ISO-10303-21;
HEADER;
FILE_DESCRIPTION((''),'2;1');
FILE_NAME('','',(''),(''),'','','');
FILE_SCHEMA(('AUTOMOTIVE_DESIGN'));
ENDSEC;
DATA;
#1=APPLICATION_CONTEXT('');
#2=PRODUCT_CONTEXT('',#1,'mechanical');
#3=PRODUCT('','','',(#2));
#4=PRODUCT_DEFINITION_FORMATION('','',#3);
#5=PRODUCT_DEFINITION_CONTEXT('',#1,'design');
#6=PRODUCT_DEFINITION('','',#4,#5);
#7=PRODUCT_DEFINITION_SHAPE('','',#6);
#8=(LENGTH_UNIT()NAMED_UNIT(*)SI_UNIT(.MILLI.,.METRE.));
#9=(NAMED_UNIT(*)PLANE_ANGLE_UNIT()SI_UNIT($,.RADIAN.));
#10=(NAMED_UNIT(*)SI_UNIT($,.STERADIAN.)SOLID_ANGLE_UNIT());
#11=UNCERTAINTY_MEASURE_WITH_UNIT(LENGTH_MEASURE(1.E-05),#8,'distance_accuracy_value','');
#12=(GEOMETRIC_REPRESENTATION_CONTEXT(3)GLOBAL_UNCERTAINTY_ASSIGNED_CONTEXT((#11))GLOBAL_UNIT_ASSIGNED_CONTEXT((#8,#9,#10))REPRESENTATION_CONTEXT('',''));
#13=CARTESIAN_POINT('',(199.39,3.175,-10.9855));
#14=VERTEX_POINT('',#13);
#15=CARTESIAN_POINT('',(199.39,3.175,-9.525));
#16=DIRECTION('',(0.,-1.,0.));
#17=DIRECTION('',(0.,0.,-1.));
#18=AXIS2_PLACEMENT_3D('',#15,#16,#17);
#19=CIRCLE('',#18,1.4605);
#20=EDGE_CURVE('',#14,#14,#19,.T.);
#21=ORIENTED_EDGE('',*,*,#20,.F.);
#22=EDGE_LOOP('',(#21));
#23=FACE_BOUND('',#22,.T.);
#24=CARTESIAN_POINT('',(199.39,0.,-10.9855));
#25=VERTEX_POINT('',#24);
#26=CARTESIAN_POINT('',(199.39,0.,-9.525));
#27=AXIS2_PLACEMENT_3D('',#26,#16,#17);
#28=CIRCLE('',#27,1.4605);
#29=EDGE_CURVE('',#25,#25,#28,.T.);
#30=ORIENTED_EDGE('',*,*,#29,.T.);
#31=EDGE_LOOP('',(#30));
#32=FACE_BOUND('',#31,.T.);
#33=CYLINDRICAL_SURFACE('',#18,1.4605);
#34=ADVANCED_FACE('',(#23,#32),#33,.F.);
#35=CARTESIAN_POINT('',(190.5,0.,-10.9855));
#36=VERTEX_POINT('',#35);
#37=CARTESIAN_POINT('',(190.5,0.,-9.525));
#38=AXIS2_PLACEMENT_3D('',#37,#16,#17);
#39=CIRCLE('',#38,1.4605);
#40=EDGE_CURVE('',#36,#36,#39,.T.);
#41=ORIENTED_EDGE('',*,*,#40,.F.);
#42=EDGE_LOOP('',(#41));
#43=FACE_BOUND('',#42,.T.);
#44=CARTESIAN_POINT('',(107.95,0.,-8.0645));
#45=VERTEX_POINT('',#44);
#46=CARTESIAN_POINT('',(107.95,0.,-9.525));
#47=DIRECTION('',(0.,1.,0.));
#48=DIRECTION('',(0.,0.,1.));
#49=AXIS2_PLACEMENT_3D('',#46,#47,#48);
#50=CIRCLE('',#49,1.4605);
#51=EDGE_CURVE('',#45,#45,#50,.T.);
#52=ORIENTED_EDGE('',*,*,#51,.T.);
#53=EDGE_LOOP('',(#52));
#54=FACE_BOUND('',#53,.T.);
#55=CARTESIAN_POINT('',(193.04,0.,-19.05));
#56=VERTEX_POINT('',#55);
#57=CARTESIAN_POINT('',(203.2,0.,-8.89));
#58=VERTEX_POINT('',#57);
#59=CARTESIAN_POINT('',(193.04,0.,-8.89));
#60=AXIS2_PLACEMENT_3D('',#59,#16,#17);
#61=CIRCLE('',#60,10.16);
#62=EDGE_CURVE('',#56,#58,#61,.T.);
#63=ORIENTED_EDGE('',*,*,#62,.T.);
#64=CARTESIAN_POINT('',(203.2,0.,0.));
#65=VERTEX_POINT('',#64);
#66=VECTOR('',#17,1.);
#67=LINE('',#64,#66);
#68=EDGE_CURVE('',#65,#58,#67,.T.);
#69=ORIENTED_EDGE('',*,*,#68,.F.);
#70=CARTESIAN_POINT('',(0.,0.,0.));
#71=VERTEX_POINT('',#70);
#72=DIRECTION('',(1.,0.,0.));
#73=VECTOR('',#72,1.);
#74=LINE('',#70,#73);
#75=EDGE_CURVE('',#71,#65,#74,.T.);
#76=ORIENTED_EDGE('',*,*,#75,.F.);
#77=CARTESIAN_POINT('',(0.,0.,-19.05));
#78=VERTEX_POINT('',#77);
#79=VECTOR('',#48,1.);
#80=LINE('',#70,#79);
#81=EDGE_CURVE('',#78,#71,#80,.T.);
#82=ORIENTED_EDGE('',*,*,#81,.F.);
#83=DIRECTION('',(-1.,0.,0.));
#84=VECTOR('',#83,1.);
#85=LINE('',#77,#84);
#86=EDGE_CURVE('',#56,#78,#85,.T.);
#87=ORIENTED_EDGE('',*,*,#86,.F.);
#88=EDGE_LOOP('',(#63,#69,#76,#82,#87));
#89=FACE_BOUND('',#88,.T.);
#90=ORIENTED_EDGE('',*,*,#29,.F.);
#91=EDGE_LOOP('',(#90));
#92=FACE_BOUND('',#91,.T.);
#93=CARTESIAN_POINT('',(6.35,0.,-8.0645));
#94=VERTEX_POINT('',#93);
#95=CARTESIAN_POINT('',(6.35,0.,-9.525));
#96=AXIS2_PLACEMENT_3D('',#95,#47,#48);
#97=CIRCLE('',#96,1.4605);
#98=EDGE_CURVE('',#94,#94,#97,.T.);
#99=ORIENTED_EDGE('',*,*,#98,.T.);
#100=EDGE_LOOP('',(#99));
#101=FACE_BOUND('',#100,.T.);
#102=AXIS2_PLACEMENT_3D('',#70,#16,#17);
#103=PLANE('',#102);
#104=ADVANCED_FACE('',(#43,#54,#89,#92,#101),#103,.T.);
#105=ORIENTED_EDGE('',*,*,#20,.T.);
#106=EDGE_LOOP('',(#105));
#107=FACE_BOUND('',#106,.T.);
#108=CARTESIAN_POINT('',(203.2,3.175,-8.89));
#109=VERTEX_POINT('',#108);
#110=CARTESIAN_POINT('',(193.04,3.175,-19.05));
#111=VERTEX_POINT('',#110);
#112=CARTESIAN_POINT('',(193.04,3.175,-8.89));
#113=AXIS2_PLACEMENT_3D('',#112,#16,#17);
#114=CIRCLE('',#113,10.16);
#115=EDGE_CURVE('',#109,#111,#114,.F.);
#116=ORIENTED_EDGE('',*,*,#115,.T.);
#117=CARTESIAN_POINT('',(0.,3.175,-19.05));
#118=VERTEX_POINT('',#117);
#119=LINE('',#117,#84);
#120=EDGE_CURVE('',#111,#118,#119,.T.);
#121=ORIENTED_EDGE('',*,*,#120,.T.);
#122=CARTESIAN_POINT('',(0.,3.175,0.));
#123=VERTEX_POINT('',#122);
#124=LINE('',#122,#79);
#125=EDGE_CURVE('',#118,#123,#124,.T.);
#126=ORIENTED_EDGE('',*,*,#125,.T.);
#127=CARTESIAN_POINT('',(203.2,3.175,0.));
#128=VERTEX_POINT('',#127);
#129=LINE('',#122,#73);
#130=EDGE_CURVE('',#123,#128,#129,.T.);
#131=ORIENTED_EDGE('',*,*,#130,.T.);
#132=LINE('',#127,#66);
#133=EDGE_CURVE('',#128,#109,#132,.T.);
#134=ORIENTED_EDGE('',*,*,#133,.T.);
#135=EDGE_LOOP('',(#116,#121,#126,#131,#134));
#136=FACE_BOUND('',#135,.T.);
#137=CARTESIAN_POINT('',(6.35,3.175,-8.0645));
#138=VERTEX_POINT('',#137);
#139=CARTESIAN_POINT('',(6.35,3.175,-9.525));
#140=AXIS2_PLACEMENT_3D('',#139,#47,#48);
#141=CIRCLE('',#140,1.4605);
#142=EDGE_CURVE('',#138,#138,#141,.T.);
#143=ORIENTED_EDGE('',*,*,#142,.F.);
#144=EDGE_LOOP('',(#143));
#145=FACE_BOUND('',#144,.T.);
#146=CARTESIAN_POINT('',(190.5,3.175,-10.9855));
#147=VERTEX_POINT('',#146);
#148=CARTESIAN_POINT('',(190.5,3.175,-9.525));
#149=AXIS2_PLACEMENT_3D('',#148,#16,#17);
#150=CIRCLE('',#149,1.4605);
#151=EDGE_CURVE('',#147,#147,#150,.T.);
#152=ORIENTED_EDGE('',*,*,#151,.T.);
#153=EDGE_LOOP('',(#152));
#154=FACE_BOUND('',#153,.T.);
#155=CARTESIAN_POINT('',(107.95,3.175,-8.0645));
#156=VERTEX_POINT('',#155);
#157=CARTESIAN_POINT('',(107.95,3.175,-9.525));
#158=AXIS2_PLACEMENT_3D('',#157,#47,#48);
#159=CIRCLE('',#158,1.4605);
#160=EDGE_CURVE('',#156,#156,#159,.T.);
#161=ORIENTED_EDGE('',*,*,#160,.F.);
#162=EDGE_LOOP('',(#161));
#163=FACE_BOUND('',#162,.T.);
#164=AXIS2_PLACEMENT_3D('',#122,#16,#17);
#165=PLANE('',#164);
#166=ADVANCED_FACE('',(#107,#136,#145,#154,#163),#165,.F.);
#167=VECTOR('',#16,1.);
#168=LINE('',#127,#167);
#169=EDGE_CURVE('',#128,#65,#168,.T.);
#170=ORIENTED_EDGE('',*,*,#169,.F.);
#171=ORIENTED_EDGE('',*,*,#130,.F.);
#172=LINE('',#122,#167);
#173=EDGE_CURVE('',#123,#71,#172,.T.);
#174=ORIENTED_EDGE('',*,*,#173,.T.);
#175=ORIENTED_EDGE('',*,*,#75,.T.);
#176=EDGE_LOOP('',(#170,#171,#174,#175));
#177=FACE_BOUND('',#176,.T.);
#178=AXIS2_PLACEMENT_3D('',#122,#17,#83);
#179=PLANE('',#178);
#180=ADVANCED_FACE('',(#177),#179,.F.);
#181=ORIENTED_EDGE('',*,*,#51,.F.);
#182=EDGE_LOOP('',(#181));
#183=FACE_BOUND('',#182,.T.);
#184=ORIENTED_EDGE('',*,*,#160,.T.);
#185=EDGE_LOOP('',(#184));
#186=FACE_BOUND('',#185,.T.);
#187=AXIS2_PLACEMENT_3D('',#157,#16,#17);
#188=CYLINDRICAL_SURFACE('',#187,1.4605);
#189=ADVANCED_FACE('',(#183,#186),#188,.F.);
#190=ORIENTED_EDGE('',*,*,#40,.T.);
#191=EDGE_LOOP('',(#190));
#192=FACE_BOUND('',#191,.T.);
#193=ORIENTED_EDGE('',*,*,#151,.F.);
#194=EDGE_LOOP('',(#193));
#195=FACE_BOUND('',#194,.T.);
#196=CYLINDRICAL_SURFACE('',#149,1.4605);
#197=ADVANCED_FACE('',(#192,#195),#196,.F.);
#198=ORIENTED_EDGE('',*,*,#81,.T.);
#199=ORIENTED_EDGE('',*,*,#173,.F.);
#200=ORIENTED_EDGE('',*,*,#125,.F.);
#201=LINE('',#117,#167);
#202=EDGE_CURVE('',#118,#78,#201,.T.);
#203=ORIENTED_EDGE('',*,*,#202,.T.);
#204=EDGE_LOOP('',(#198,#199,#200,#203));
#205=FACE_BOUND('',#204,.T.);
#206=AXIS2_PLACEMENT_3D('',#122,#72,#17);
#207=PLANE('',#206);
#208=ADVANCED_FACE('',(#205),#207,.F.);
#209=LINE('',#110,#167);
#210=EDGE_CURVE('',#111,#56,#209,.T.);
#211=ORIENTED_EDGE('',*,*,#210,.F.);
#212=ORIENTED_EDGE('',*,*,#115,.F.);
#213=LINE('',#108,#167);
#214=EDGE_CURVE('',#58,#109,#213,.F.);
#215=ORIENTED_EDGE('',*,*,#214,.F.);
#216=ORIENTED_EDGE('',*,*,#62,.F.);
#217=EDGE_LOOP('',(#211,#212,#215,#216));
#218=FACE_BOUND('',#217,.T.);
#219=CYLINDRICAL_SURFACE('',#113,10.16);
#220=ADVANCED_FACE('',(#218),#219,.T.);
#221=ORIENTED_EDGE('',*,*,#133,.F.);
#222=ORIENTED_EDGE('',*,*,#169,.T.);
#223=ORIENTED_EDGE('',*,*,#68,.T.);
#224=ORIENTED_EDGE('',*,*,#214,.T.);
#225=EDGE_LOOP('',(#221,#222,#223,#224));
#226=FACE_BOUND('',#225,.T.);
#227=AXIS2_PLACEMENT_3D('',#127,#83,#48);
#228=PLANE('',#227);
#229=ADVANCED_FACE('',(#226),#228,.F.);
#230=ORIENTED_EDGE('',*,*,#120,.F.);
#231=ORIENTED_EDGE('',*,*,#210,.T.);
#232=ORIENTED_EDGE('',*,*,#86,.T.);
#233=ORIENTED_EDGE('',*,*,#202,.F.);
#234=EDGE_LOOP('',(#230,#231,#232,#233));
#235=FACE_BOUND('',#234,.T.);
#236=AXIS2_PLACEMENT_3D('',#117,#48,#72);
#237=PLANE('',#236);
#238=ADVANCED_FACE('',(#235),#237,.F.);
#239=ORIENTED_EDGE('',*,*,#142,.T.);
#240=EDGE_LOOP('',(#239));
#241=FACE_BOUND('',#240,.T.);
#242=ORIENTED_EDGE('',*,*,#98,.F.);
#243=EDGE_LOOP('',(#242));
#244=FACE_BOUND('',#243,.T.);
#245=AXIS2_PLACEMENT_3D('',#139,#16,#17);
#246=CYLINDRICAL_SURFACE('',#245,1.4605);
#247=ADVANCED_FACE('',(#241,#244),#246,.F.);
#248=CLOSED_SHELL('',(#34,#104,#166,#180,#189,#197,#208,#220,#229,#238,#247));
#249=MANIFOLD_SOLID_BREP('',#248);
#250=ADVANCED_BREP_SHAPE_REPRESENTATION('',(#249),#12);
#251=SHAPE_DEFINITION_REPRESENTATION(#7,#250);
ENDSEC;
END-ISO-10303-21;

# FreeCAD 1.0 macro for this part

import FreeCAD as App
import Part
import Sketcher
Q = App.Units.Quantity


def edges_at(feature, points):
    """Names of the edges that pass closest to the given points."""
    edges = feature.Shape.Edges
    near = lambda p: min(range(len(edges)), key=lambda i: edges[i].distToShape(Part.Vertex(*p))[0])
    return sorted({f"Edge{near(p) + 1}" for p in points})

doc = App.newDocument("Part")
body = doc.addObject("PartDesign::Body", "Body")

sketch1 = doc.addObject("Sketcher::SketchObject", "Sketch")
body.addObject(sketch1)
sketch1.AttachmentSupport = (doc.XZ_Plane, [""])
sketch1.MapMode = "FlatFace"
sketch1.addGeometry(Part.LineSegment(App.Vector(0, -19.05, 0), App.Vector(0, 0, 0)), False)
sketch1.addGeometry(Part.LineSegment(App.Vector(0, 0, 0), App.Vector(203.2, 0, 0)), False)
sketch1.addGeometry(Part.LineSegment(App.Vector(203.2, 0, 0), App.Vector(203.2, -19.05, 0)), False)
sketch1.addGeometry(Part.LineSegment(App.Vector(203.2, -19.05, 0), App.Vector(0, -19.05, 0)), False)
sketch1.addGeometry(Part.Circle(App.Vector(6.35, -9.525, 0), App.Vector(0, 0, 1), 1.4605), False)
sketch1.addGeometry(Part.Circle(App.Vector(107.95, -9.525, 0), App.Vector(0, 0, 1), 1.4605), False)
sketch1.addConstraint(Sketcher.Constraint("Coincident", 0, 2, 1, 1))
sketch1.addConstraint(Sketcher.Constraint("Coincident", 1, 2, 2, 1))
sketch1.addConstraint(Sketcher.Constraint("Coincident", 2, 2, 3, 1))
sketch1.addConstraint(Sketcher.Constraint("Coincident", 3, 2, 0, 1))
sketch1.addConstraint(Sketcher.Constraint("Vertical", 0))
sketch1.addConstraint(Sketcher.Constraint("Horizontal", 1))
sketch1.addConstraint(Sketcher.Constraint("Vertical", 2))
sketch1.addConstraint(Sketcher.Constraint("Horizontal", 3))
sketch1.addConstraint(Sketcher.Constraint("Coincident", 0, 2, -1, 1))
sketch1.addConstraint(Sketcher.Constraint("Equal", 4, 5))
sketch1.addConstraint(Sketcher.Constraint("Horizontal", 4, 3, 5, 3))
sketch1.addConstraint(Sketcher.Constraint("DistanceX", 1, 1, 1, 2, Q("8 in")))
sketch1.addConstraint(Sketcher.Constraint("Diameter", 4, Q("0.115 in")))
sketch1.addConstraint(Sketcher.Constraint("DistanceX", 4, 3, 5, 3, Q("4 in")))
sketch1.addConstraint(Sketcher.Constraint("DistanceY", 0, 1, 0, 2, Q("0.75 in")))
sketch1.addConstraint(Sketcher.Constraint("DistanceX", -1, 1, 4, 3, Q("0.25 in")))
sketch1.addConstraint(Sketcher.Constraint("DistanceY", 4, 3, -1, 1, Q("0.375 in")))
pad1 = doc.addObject("PartDesign::Pad", "Pad")
body.addObject(pad1)
pad1.Profile = sketch1
pad1.Length = Q("0.125 in")
pad1.Reversed = True

sketch2 = doc.addObject("Sketcher::SketchObject", "Sketch001")
body.addObject(sketch2)
sketch2.AttachmentSupport = (doc.XZ_Plane, [""])
sketch2.MapMode = "FlatFace"
sketch2.addGeometry(Part.Circle(App.Vector(199.39, -9.525, 0), App.Vector(0, 0, 1), 1.4605), False)
sketch2.addGeometry(Part.Circle(App.Vector(190.5, -9.525, 0), App.Vector(0, 0, 1), 1.4605), False)
sketch2.addConstraint(Sketcher.Constraint("Equal", 0, 1))
sketch2.addConstraint(Sketcher.Constraint("Horizontal", 0, 3, 1, 3))
sketch2.addConstraint(Sketcher.Constraint("Diameter", 0, Q("0.115 in")))
sketch2.addConstraint(Sketcher.Constraint("DistanceX", -1, 1, 1, 3, Q("7.5 in")))
sketch2.addConstraint(Sketcher.Constraint("DistanceX", -1, 1, 0, 3, Q("7.85 in")))
sketch2.addConstraint(Sketcher.Constraint("DistanceY", 0, 3, -1, 1, Q("0.375 in")))
pocket1 = doc.addObject("PartDesign::Pocket", "Pocket")
body.addObject(pocket1)
pocket1.Profile = sketch2
pocket1.Type = "ThroughAll"
doc.recompute()

fillet = doc.addObject("PartDesign::Fillet", "Fillet")
body.addObject(fillet)
fillet.Base = (pocket1, edges_at(pocket1, [(203.2, 1.587, -19.05)]))
fillet.Radius = Q("0.4 in")

doc.recompute()
